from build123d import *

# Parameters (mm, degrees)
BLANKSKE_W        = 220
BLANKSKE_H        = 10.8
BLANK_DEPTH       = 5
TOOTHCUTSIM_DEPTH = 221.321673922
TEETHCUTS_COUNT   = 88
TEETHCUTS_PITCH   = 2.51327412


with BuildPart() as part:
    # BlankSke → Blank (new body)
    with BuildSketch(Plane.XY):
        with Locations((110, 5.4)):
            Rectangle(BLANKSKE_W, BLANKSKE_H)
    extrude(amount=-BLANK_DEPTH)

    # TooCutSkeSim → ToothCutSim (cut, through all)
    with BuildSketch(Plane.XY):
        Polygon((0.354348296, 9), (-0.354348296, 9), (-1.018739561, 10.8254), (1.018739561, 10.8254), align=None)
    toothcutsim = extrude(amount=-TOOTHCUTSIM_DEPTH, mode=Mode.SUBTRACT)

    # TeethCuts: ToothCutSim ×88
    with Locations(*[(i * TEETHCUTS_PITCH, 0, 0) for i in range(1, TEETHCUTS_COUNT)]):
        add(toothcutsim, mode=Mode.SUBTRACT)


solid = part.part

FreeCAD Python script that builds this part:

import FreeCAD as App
import Part
import Sketcher
Q = App.Units.Quantity

doc = App.newDocument("Part")
params = doc.addObject("Spreadsheet::Sheet", "Params")
for row, (alias, value) in enumerate([
    ("sketch1_width", "220 mm"),
    ("sketch1_height", "10.8 mm"),
    ("pad1_length", "5 mm"),
    ("linearpattern_pitch", "2.513274 mm"),
], start=1):
    params.set(f"A{row}", alias)
    params.set(f"B{row}", "=" + value)
    params.setAlias(f"B{row}", alias)

body = doc.addObject("PartDesign::Body", "Body")

# Sketch on XY plane
sketch1 = body.newObject("Sketcher::SketchObject", "Sketch")
sketch1.AttachmentSupport = (doc.getObject("XY_Plane"), [""])
sketch1.MapMode = "FlatFace"
sketch1.addGeometry(Part.LineSegment(App.Vector(0, 11, 0), App.Vector(0, 0, 0)), False)
sketch1.addGeometry(Part.LineSegment(App.Vector(0, 0, 0), App.Vector(220, 0, 0)), False)
sketch1.addGeometry(Part.LineSegment(App.Vector(220, 0, 0), App.Vector(220, 11, 0)), False)
sketch1.addGeometry(Part.LineSegment(App.Vector(220, 11, 0), App.Vector(0, 11, 0)), False)
sketch1.addConstraint(Sketcher.Constraint("Coincident", 0, 2, 1, 1))
sketch1.addConstraint(Sketcher.Constraint("Coincident", 1, 2, 2, 1))
sketch1.addConstraint(Sketcher.Constraint("Coincident", 2, 2, 3, 1))
sketch1.addConstraint(Sketcher.Constraint("Coincident", 3, 2, 0, 1))
sketch1.addConstraint(Sketcher.Constraint("Vertical", 0))
sketch1.addConstraint(Sketcher.Constraint("Horizontal", 1))
sketch1.addConstraint(Sketcher.Constraint("Vertical", 2))
sketch1.addConstraint(Sketcher.Constraint("Horizontal", 3))
sketch1.addConstraint(Sketcher.Constraint("Coincident", 0, 2, -1, 1))
sketch1.addConstraint(Sketcher.Constraint("DistanceX", 1, 1, 1, 2, Q("220 mm")))
sketch1.addConstraint(Sketcher.Constraint("DistanceY", 0, 2, 0, 1, Q("10.8 mm")))
sketch1.setExpression("Constraints[9]", "Params.sketch1_width")
sketch1.setExpression("Constraints[10]", "Params.sketch1_height")
pad1 = body.newObject("PartDesign::Pad", "Pad")
pad1.Profile = sketch1
pad1.setExpression("Length", "Params.pad1_length")
pad1.Reversed = True

# Sketch on XY plane
sketch2 = body.newObject("Sketcher::SketchObject", "Sketch001")
sketch2.AttachmentSupport = (doc.getObject("XY_Plane"), [""])
sketch2.MapMode = "FlatFace"
sketch2.addGeometry(Part.LineSegment(App.Vector(-0.4, 9, 0), App.Vector(0.4, 9, 0)), False)
sketch2.addGeometry(Part.LineSegment(App.Vector(0.4, 9, 0), App.Vector(1, 10.8, 0)), False)
sketch2.addGeometry(Part.LineSegment(App.Vector(1, 10.8, 0), App.Vector(-1, 10.8, 0)), False)
sketch2.addGeometry(Part.LineSegment(App.Vector(-1, 10.8, 0), App.Vector(-0.4, 9, 0)), False)
sketch2.addConstraint(Sketcher.Constraint("Coincident", 0, 2, 1, 1))
sketch2.addConstraint(Sketcher.Constraint("Coincident", 1, 2, 2, 1))
sketch2.addConstraint(Sketcher.Constraint("Coincident", 2, 2, 3, 1))
sketch2.addConstraint(Sketcher.Constraint("Coincident", 3, 2, 0, 1))
sketch2.addConstraint(Sketcher.Constraint("Horizontal", 0))
sketch2.addConstraint(Sketcher.Constraint("Horizontal", 2))
sketch2.addConstraint(Sketcher.Constraint("Equal", 1, 3))
sketch2.addConstraint(Sketcher.Constraint("Angle", 1, Q("70 deg")))
sketch2.addConstraint(Sketcher.Constraint("DistanceY", -1, 1, 0, 2, Q("9 mm")))
sketch2.addConstraint(Sketcher.Constraint("DistanceX", 2, 2, 2, 1, Q("2.037479 mm")))
sketch2.addConstraint(Sketcher.Constraint("DistanceY", -1, 1, 1, 2, Q("10.8254 mm")))
sketch2.addConstraint(Sketcher.Constraint("DistanceX", -1, 1, 0, 2, Q("0.354348 mm")))
pocket1 = body.newObject("PartDesign::Pocket", "Pocket")
pocket1.Profile = sketch2
pocket1.Type = "ThroughAll"
doc.recompute()

linearpattern = body.newObject("PartDesign::LinearPattern", "LinearPattern")
linearpattern.Originals = [pocket1]
linearpattern.Direction = (doc.getObject("X_Axis"), [""])
linearpattern.Mode = "offset"
linearpattern.setExpression("Offset", "Params.linearpattern_pitch")
linearpattern.Occurrences = 88
body.Tip = linearpattern

doc.recompute()
